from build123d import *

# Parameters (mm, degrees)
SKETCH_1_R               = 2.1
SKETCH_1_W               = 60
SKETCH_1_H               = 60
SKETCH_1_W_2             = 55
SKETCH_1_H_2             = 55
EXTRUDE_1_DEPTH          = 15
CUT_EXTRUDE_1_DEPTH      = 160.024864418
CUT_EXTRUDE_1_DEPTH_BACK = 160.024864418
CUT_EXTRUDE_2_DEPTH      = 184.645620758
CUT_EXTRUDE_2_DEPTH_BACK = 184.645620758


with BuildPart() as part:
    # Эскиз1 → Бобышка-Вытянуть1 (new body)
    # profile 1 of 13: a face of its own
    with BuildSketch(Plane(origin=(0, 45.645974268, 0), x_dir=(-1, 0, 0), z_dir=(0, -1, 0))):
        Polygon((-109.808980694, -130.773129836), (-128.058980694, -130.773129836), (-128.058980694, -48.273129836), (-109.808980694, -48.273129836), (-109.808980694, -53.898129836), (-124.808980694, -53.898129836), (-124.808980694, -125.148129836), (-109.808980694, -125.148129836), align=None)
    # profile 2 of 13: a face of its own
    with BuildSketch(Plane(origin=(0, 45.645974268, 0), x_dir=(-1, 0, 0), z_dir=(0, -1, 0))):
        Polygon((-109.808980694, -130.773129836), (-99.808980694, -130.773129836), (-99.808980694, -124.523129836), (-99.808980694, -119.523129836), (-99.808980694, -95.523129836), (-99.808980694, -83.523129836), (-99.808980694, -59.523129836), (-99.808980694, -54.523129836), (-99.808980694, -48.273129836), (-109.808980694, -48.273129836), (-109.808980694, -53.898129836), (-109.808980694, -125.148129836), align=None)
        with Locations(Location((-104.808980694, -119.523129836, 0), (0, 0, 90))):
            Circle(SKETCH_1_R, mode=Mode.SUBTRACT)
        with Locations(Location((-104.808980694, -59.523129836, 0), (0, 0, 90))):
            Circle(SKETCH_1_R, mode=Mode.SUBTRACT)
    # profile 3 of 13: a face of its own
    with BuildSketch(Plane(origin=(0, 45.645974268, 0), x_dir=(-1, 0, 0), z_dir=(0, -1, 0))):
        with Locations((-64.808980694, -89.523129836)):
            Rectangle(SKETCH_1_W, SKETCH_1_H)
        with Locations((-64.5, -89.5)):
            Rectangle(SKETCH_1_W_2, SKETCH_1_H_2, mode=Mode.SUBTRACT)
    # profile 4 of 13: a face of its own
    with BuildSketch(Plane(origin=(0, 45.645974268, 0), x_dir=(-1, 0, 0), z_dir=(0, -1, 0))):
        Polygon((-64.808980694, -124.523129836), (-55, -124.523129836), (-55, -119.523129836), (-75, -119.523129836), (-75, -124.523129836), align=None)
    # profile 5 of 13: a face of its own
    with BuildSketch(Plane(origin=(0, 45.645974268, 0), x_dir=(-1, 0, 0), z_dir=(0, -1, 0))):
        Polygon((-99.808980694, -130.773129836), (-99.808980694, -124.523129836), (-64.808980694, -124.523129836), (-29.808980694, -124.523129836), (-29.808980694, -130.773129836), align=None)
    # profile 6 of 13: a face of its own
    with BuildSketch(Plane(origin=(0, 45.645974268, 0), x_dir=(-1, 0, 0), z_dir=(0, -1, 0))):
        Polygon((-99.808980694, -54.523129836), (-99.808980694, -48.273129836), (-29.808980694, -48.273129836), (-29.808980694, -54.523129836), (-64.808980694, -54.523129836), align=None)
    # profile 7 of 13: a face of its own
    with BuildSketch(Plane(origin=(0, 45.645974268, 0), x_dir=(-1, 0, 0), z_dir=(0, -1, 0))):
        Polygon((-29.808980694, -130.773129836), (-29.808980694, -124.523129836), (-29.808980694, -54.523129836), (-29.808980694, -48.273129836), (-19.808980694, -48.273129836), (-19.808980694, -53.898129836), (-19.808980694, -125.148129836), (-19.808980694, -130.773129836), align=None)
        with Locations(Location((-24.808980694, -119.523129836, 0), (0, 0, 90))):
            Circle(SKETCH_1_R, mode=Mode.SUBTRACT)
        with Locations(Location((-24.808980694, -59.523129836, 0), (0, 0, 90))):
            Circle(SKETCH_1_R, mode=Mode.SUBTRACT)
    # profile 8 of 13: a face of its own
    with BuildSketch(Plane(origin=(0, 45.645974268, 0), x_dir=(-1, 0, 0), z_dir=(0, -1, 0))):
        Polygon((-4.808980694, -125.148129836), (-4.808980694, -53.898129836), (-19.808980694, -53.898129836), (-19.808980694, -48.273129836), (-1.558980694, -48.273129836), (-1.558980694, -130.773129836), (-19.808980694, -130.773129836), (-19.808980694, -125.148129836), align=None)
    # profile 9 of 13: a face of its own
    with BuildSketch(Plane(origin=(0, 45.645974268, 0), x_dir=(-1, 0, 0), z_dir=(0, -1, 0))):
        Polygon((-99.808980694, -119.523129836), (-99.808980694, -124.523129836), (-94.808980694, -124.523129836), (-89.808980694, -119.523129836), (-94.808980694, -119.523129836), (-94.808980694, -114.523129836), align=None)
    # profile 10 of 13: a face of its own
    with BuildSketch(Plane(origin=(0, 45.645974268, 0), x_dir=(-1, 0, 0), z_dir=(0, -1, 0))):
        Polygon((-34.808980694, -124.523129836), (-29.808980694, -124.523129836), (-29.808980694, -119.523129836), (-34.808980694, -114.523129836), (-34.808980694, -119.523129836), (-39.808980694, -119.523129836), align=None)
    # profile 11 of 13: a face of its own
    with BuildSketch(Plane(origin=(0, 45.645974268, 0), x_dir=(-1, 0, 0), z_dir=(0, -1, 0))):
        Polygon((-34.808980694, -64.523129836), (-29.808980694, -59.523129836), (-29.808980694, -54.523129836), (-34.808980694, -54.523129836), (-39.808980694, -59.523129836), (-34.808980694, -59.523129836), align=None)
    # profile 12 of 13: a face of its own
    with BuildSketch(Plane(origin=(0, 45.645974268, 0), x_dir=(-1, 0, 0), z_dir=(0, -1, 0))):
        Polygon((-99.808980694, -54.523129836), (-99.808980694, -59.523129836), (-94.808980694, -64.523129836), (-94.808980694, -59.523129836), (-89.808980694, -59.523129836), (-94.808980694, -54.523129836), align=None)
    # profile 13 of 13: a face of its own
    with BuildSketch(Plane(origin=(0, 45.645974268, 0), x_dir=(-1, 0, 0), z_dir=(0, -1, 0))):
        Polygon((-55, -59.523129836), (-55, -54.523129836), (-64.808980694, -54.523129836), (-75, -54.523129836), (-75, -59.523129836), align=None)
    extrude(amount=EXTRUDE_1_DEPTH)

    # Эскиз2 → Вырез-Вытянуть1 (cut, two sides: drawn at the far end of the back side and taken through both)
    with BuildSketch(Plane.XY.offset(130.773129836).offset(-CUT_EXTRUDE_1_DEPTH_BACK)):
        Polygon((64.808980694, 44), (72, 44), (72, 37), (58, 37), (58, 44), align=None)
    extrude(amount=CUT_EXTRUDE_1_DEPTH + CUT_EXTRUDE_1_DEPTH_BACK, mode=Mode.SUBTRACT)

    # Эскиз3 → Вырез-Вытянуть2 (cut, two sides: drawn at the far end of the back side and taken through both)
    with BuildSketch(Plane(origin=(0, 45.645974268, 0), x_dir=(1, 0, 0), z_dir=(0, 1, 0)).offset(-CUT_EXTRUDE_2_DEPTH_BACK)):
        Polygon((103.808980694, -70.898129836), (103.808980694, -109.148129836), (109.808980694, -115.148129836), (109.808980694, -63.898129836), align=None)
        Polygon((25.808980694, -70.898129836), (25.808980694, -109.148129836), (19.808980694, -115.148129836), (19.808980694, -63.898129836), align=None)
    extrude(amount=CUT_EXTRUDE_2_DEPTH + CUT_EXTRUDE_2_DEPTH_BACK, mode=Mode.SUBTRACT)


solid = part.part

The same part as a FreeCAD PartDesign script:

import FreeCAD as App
import Part
import Sketcher
Q = App.Units.Quantity

doc = App.newDocument("Part")
body = doc.addObject("PartDesign::Body", "Body")

sketch1 = body.newObject("Sketcher::SketchObject", "Sketch")
sketch1.AttachmentSupport = (doc.getObject("XZ_Plane"), [""])
sketch1.MapMode = "FlatFace"
sketch1.AttachmentOffset = App.Placement(App.Vector(0, 0, -45.645974), App.Rotation())
sketch1.addGeometry([
    Part.LineSegment(App.Vector(128.1, 130.8, 0), App.Vector(1.6, 130.8, 0)),
    Part.LineSegment(App.Vector(1.6, 130.8, 0), App.Vector(1.6, 48.3, 0)),
    Part.LineSegment(App.Vector(1.6, 48.3, 0), App.Vector(128.1, 48.3, 0)),
    Part.LineSegment(App.Vector(128.1, 48.3, 0), App.Vector(128.1, 130.8, 0)),
    Part.LineSegment(App.Vector(124.8, 53.9, 0), App.Vector(109.8, 53.9, 0)),
    Part.LineSegment(App.Vector(109.8, 53.9, 0), App.Vector(109.8, 125.1, 0)),
    Part.LineSegment(App.Vector(109.8, 125.1, 0), App.Vector(124.8, 125.1, 0)),
    Part.LineSegment(App.Vector(124.8, 125.1, 0), App.Vector(124.8, 53.9, 0)),
    Part.Circle(App.Vector(104.8, 59.5, 0), App.Vector(0, 0, 1), 2.1),
    Part.Circle(App.Vector(104.8, 119.5, 0), App.Vector(0, 0, 1), 2.1),
    Part.LineSegment(App.Vector(99.8, 119.5, 0), App.Vector(99.8, 59.5, 0)),
    Part.LineSegment(App.Vector(99.8, 59.5, 0), App.Vector(94.8, 64.5, 0)),
    Part.LineSegment(App.Vector(94.8, 64.5, 0), App.Vector(94.8, 114.5, 0)),
    Part.LineSegment(App.Vector(94.8, 114.5, 0), App.Vector(99.8, 119.5, 0)),
    Part.LineSegment(App.Vector(34.8, 124.5, 0), App.Vector(55, 124.5, 0)),
    Part.LineSegment(App.Vector(55, 124.5, 0), App.Vector(55, 119.5, 0)),
    Part.LineSegment(App.Vector(55, 119.5, 0), App.Vector(39.8, 119.5, 0)),
    Part.LineSegment(App.Vector(39.8, 119.5, 0), App.Vector(34.8, 124.5, 0)),
    Part.LineSegment(App.Vector(75, 124.5, 0), App.Vector(94.8, 124.5, 0)),
    Part.LineSegment(App.Vector(94.8, 124.5, 0), App.Vector(89.8, 119.5, 0)),
    Part.LineSegment(App.Vector(89.8, 119.5, 0), App.Vector(75, 119.5, 0)),
    Part.LineSegment(App.Vector(75, 119.5, 0), App.Vector(75, 124.5, 0)),
    Part.LineSegment(App.Vector(89.8, 59.5, 0), App.Vector(94.8, 54.5, 0)),
    Part.LineSegment(App.Vector(94.8, 54.5, 0), App.Vector(75, 54.5, 0)),
    Part.LineSegment(App.Vector(75, 54.5, 0), App.Vector(75, 59.5, 0)),
    Part.LineSegment(App.Vector(75, 59.5, 0), App.Vector(89.8, 59.5, 0)),
    Part.LineSegment(App.Vector(55, 54.5, 0), App.Vector(34.8, 54.5, 0)),
    Part.LineSegment(App.Vector(34.8, 54.5, 0), App.Vector(39.8, 59.5, 0)),
    Part.LineSegment(App.Vector(39.8, 59.5, 0), App.Vector(55, 59.5, 0)),
    Part.LineSegment(App.Vector(55, 59.5, 0), App.Vector(55, 54.5, 0)),
    Part.LineSegment(App.Vector(29.8, 119.5, 0), App.Vector(34.8, 114.5, 0)),
    Part.LineSegment(App.Vector(34.8, 114.5, 0), App.Vector(34.8, 64.5, 0)),
    Part.LineSegment(App.Vector(34.8, 64.5, 0), App.Vector(29.8, 59.5, 0)),
    Part.LineSegment(App.Vector(29.8, 59.5, 0), App.Vector(29.8, 119.5, 0)),
    Part.Circle(App.Vector(24.8, 119.5, 0), App.Vector(0, 0, 1), 2.1),
    Part.Circle(App.Vector(24.8, 59.5, 0), App.Vector(0, 0, 1), 2.1),
    Part.LineSegment(App.Vector(19.8, 125.1, 0), App.Vector(19.8, 53.9, 0)),
    Part.LineSegment(App.Vector(19.8, 53.9, 0), App.Vector(4.8, 53.9, 0)),
    Part.LineSegment(App.Vector(4.8, 53.9, 0), App.Vector(4.8, 125.1, 0)),
    Part.LineSegment(App.Vector(4.8, 125.1, 0), App.Vector(19.8, 125.1, 0)),
    Part.LineSegment(App.Vector(92, 117, 0), App.Vector(92, 62, 0)),
    Part.LineSegment(App.Vector(92, 62, 0), App.Vector(37, 62, 0)),
    Part.LineSegment(App.Vector(37, 62, 0), App.Vector(37, 117, 0)),
    Part.LineSegment(App.Vector(37, 117, 0), App.Vector(92, 117, 0)),
], False)
sketch1.addConstraint([
    Sketcher.Constraint("Coincident", 0, 2, 1, 1),
    Sketcher.Constraint("Coincident", 1, 2, 2, 1),
    Sketcher.Constraint("Coincident", 2, 2, 3, 1),
    Sketcher.Constraint("Coincident", 3, 2, 0, 1),
    Sketcher.Constraint("Coincident", 4, 2, 5, 1),
    Sketcher.Constraint("Coincident", 5, 2, 6, 1),
    Sketcher.Constraint("Coincident", 6, 2, 7, 1),
    Sketcher.Constraint("Coincident", 7, 2, 4, 1),
    Sketcher.Constraint("Coincident", 10, 2, 11, 1),
    Sketcher.Constraint("Coincident", 11, 2, 12, 1),
    Sketcher.Constraint("Coincident", 12, 2, 13, 1),
    Sketcher.Constraint("Coincident", 13, 2, 10, 1),
    Sketcher.Constraint("Coincident", 14, 2, 15, 1),
    Sketcher.Constraint("Coincident", 15, 2, 16, 1),
    Sketcher.Constraint("Coincident", 16, 2, 17, 1),
    Sketcher.Constraint("Coincident", 17, 2, 14, 1),
    Sketcher.Constraint("Coincident", 18, 2, 19, 1),
    Sketcher.Constraint("Coincident", 19, 2, 20, 1),
    Sketcher.Constraint("Coincident", 20, 2, 21, 1),
    Sketcher.Constraint("Coincident", 21, 2, 18, 1),
    Sketcher.Constraint("Coincident", 22, 2, 23, 1),
    Sketcher.Constraint("Coincident", 23, 2, 24, 1),
    Sketcher.Constraint("Coincident", 24, 2, 25, 1),
    Sketcher.Constraint("Coincident", 25, 2, 22, 1),
    Sketcher.Constraint("Coincident", 26, 2, 27, 1),
    Sketcher.Constraint("Coincident", 27, 2, 28, 1),
    Sketcher.Constraint("Coincident", 28, 2, 29, 1),
    Sketcher.Constraint("Coincident", 29, 2, 26, 1),
    Sketcher.Constraint("Coincident", 30, 2, 31, 1),
    Sketcher.Constraint("Coincident", 31, 2, 32, 1),
    Sketcher.Constraint("Coincident", 32, 2, 33, 1),
    Sketcher.Constraint("Coincident", 33, 2, 30, 1),
    Sketcher.Constraint("Coincident", 36, 2, 37, 1),
    Sketcher.Constraint("Coincident", 37, 2, 38, 1),
    Sketcher.Constraint("Coincident", 38, 2, 39, 1),
    Sketcher.Constraint("Coincident", 39, 2, 36, 1),
    Sketcher.Constraint("Coincident", 40, 2, 41, 1),
    Sketcher.Constraint("Coincident", 41, 2, 42, 1),
    Sketcher.Constraint("Coincident", 42, 2, 43, 1),
    Sketcher.Constraint("Coincident", 43, 2, 40, 1),
    Sketcher.Constraint("Horizontal", 0),
    Sketcher.Constraint("Vertical", 1),
    Sketcher.Constraint("Horizontal", 2),
    Sketcher.Constraint("Vertical", 3),
    Sketcher.Constraint("Horizontal", 4),
    Sketcher.Constraint("Vertical", 5),
    Sketcher.Constraint("Horizontal", 6),
    Sketcher.Constraint("Vertical", 7),
    Sketcher.Constraint("Vertical", 10),
    Sketcher.Constraint("Vertical", 12),
    Sketcher.Constraint("Horizontal", 14),
    Sketcher.Constraint("Vertical", 15),
    Sketcher.Constraint("Horizontal", 16),
    Sketcher.Constraint("Horizontal", 18),
    Sketcher.Constraint("Horizontal", 20),
    Sketcher.Constraint("Vertical", 21),
    Sketcher.Constraint("Horizontal", 23),
    Sketcher.Constraint("Vertical", 24),
    Sketcher.Constraint("Horizontal", 25),
    Sketcher.Constraint("Horizontal", 26),
    Sketcher.Constraint("Horizontal", 28),
    Sketcher.Constraint("Vertical", 29),
    Sketcher.Constraint("Vertical", 31),
    Sketcher.Constraint("Vertical", 33),
    Sketcher.Constraint("Vertical", 36),
    Sketcher.Constraint("Horizontal", 37),
    Sketcher.Constraint("Vertical", 38),
    Sketcher.Constraint("Horizontal", 39),
    Sketcher.Constraint("Vertical", 40),
    Sketcher.Constraint("Horizontal", 41),
    Sketcher.Constraint("Vertical", 42),
    Sketcher.Constraint("Horizontal", 43),
    Sketcher.Constraint("Equal", 8, 9),
    Sketcher.Constraint("Equal", 9, 34),
    Sketcher.Constraint("Equal", 34, 35),
    Sketcher.Constraint("Perpendicular", 11, 13),
    Sketcher.Constraint("Perpendicular", 13, 17),
    Sketcher.Constraint("Perpendicular", 17, 19),
    Sketcher.Constraint("Perpendicular", 19, 22),
    Sketcher.Constraint("Perpendicular", 22, 27),
    Sketcher.Constraint("Perpendicular", 27, 30),
    Sketcher.Constraint("Perpendicular", 30, 32),
    Sketcher.Constraint("Horizontal", 9, 3, 34, 3),
    Sketcher.Constraint("Horizontal", 8, 3, 35, 3),
    Sketcher.Constraint("Horizontal", 35, 3, 10, 2),
    Sketcher.Constraint("Horizontal", 34, 3, 13, 2),
    Sketcher.Constraint("Horizontal", 13, 2, 15, 2),
    Sketcher.Constraint("Horizontal", 17, 2, 18, 2),
    Sketcher.Constraint("Horizontal", 16, 2, 19, 2),
    Sketcher.Constraint("Horizontal", 10, 2, 24, 2),
    Sketcher.Constraint("Horizontal", 23, 2, 26, 2),
    Sketcher.Constraint("Horizontal", 25, 2, 27, 2),
    Sketcher.Constraint("Horizontal", 12, 2, 30, 2),
    Sketcher.Constraint("Horizontal", 11, 2, 31, 2),
    Sketcher.Constraint("Horizontal", 28, 2, 32, 2),
    Sketcher.Constraint("Horizontal", 20, 2, 33, 2),
    Sketcher.Constraint("Horizontal", 7, 2, 36, 2),
    Sketcher.Constraint("Horizontal", 6, 2, 38, 2),
    Sketcher.Constraint("Vertical", 8, 3, 9, 3),
    Sketcher.Constraint("Vertical", 34, 3, 35, 3),
    Sketcher.Constraint("Vertical", 12, 2, 18, 2),
    Sketcher.Constraint("Vertical", 18, 2, 22, 2),
    Sketcher.Constraint("Vertical", 21, 2, 23, 2),
    Sketcher.Constraint("Vertical", 19, 2, 25, 2),
    Sketcher.Constraint("Vertical", 17, 2, 26, 2),
    Sketcher.Constraint("Vertical", 15, 2, 28, 2),
    Sketcher.Constraint("Vertical", 26, 2, 30, 2),
    Sketcher.Constraint("Equal", 6, 37),
    Sketcher.Constraint("Equal", 43, 40),
    Sketcher.Constraint("Equal", 13, 17),
    Sketcher.Constraint("Diameter", 8, Q("4.2 mm")),
    Sketcher.Constraint("DistanceX", 4, 2, 4, 1, Q("15 mm")),
    Sketcher.Constraint("DistanceX", 41, 2, 41, 1, Q("55 mm")),
    Sketcher.Constraint("DistanceY", 10, 2, 10, 1, Q("60 mm")),
    Sketcher.Constraint("DistanceY", 12, 1, 12, 2, Q("50 mm")),
    Sketcher.Constraint("DistanceX", 0, 2, 0, 1, Q("126.5 mm")),
    Sketcher.Constraint("DistanceY", 1, 2, 1, 1, Q("82.5 mm")),
    Sketcher.Constraint("DistanceX", -1, 1, 14, 2, Q("55 mm")),
    Sketcher.Constraint("DistanceX", -1, 1, 20, 2, Q("75 mm")),
    Sketcher.Constraint("DistanceX", -1, 1, 40, 2, Q("92 mm")),
    Sketcher.Constraint("DistanceY", -1, 1, 40, 2, Q("62 mm")),
    Sketcher.Constraint("DistanceX", 34, 3, 9, 3, Q("80 mm")),
    Sketcher.Constraint("DistanceX", 8, 3, 4, 2, Q("5 mm")),
    Sketcher.Constraint("DistanceX", 10, 2, 8, 3, Q("5 mm")),
    Sketcher.Constraint("DistanceX", 34, 3, 16, 2, Q("15 mm")),
    Sketcher.Constraint("DistanceX", 36, 2, 35, 3, Q("5 mm")),
    Sketcher.Constraint("DistanceY", 5, 1, 5, 2, Q("71.25 mm")),
    Sketcher.Constraint("DistanceX", 0, 2, 34, 3, Q("23.25 mm")),
    Sketcher.Constraint("DistanceY", 34, 3, 0, 2, Q("11.25 mm")),
    Sketcher.Constraint("DistanceY", 4, 2, 8, 3, Q("5.625 mm")),
    Sketcher.Constraint("DistanceX", 14, 1, 14, 2, Q("20.191019 mm")),
    Sketcher.Constraint("DistanceY", -1, 1, 8, 3, Q("59.52313 mm")),
])
pad1 = body.newObject("PartDesign::Pad", "Pad")
pad1.Profile = sketch1
pad1.Length = 15

sketch2 = body.newObject("Sketcher::SketchObject", "Sketch001")
sketch2.AttachmentSupport = (doc.getObject("XY_Plane"), [""])
sketch2.MapMode = "FlatFace"
sketch2.AttachmentOffset = App.Placement(App.Vector(0, 0, 130.77313), App.Rotation())
sketch2.addGeometry([
    Part.LineSegment(App.Vector(72, 44, 0), App.Vector(58, 44, 0)),
    Part.LineSegment(App.Vector(58, 44, 0), App.Vector(58, 37, 0)),
    Part.LineSegment(App.Vector(58, 37, 0), App.Vector(72, 37, 0)),
    Part.LineSegment(App.Vector(72, 37, 0), App.Vector(72, 44, 0)),
], False)
sketch2.addConstraint([
    Sketcher.Constraint("Coincident", 0, 2, 1, 1),
    Sketcher.Constraint("Coincident", 1, 2, 2, 1),
    Sketcher.Constraint("Coincident", 2, 2, 3, 1),
    Sketcher.Constraint("Coincident", 3, 2, 0, 1),
    Sketcher.Constraint("Horizontal", 0),
    Sketcher.Constraint("Vertical", 1),
    Sketcher.Constraint("Horizontal", 2),
    Sketcher.Constraint("Vertical", 3),
    Sketcher.Constraint("DistanceX", 0, 2, 0, 1, Q("14 mm")),
    Sketcher.Constraint("DistanceY", 1, 2, 1, 1, Q("7 mm")),
    Sketcher.Constraint("DistanceX", -1, 1, 0, 2, Q("58 mm")),
    Sketcher.Constraint("DistanceY", -1, 1, 0, 2, Q("44 mm")),
])
pocket1 = body.newObject("PartDesign::Pocket", "Pocket")
pocket1.Profile = sketch2
pocket1.Type = "ThroughAll"
pocket1.Midplane = True

sketch3 = body.newObject("Sketcher::SketchObject", "Sketch002")
sketch3.AttachmentSupport = (doc.getObject("XZ_Plane"), [""])
sketch3.MapMode = "FlatFace"
sketch3.AttachmentOffset = App.Placement(App.Vector(0, 0, -45.645974), App.Rotation())
sketch3.addGeometry([
    Part.LineSegment(App.Vector(104, 71, 0), App.Vector(104, 109, 0)),
    Part.LineSegment(App.Vector(104, 109, 0), App.Vector(110, 115, 0)),
    Part.LineSegment(App.Vector(110, 115, 0), App.Vector(110, 64, 0)),
    Part.LineSegment(App.Vector(110, 64, 0), App.Vector(104, 71, 0)),
    Part.LineSegment(App.Vector(26, 109, 0), App.Vector(26, 71, 0)),
    Part.LineSegment(App.Vector(26, 71, 0), App.Vector(20, 64, 0)),
    Part.LineSegment(App.Vector(20, 64, 0), App.Vector(20, 115, 0)),
    Part.LineSegment(App.Vector(20, 115, 0), App.Vector(26, 109, 0)),
], False)
sketch3.addConstraint([
    Sketcher.Constraint("Coincident", 0, 2, 1, 1),
    Sketcher.Constraint("Coincident", 1, 2, 2, 1),
    Sketcher.Constraint("Coincident", 2, 2, 3, 1),
    Sketcher.Constraint("Coincident", 3, 2, 0, 1),
    Sketcher.Constraint("Coincident", 4, 2, 5, 1),
    Sketcher.Constraint("Coincident", 5, 2, 6, 1),
    Sketcher.Constraint("Coincident", 6, 2, 7, 1),
    Sketcher.Constraint("Coincident", 7, 2, 4, 1),
    Sketcher.Constraint("Vertical", 0),
    Sketcher.Constraint("Vertical", 2),
    Sketcher.Constraint("Vertical", 4),
    Sketcher.Constraint("Vertical", 6),
    Sketcher.Constraint("Perpendicular", 1, 7),
    Sketcher.Constraint("Horizontal", 3, 2, 4, 2),
    Sketcher.Constraint("Horizontal", 2, 2, 5, 2),
    Sketcher.Constraint("Horizontal", 1, 2, 6, 2),
    Sketcher.Constraint("Horizontal", 0, 2, 7, 2),
    Sketcher.Constraint("Equal", 3, 5),
    Sketcher.Constraint("DistanceX", 0, 2, 1, 2, Q("6 mm")),
    Sketcher.Constraint("DistanceY", 2, 2, 3, 2, Q("7 mm")),
    Sketcher.Constraint("DistanceX", 4, 2, 3, 2, Q("78 mm")),
    Sketcher.Constraint("DistanceY", 0, 1, 0, 2, Q("38.25 mm")),
    Sketcher.Constraint("DistanceX", -1, 1, 0, 2, Q("103.808981 mm")),
    Sketcher.Constraint("DistanceY", -1, 1, 0, 2, Q("109.14813 mm")),
])
pocket2 = body.newObject("PartDesign::Pocket", "Pocket001")
pocket2.Profile = sketch3
pocket2.Type = "ThroughAll"
pocket2.Midplane = True

doc.recompute()
